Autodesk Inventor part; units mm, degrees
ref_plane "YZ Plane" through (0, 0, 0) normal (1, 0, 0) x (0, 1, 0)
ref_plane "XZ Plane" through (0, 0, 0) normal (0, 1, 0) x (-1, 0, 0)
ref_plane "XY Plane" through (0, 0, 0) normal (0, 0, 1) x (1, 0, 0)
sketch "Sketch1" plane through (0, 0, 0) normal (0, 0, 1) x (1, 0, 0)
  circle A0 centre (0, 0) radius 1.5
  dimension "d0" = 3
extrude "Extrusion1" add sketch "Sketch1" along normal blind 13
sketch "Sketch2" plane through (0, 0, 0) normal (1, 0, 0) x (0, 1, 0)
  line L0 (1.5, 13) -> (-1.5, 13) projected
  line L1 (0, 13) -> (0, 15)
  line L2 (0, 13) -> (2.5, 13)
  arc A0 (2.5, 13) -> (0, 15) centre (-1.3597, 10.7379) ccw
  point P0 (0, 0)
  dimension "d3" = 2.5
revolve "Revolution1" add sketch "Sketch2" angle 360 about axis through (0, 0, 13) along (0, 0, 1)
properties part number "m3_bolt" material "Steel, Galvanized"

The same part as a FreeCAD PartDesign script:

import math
import FreeCAD as App
import Part
import Sketcher
Q = App.Units.Quantity

doc = App.newDocument("Part")
body = doc.addObject("PartDesign::Body", "Body")

sketch1 = doc.addObject("Sketcher::SketchObject", "Sketch")
body.addObject(sketch1)
sketch1.AttachmentSupport = (doc.XY_Plane, [""])
sketch1.MapMode = "FlatFace"
sketch1.addGeometry(Part.Circle(App.Vector(0, 0, 0), App.Vector(0, 0, 1), 1.5), False)
sketch1.addConstraint(Sketcher.Constraint("Coincident", 0, 3, -1, 1))
sketch1.addConstraint(Sketcher.Constraint("Diameter", 0, Q("3 mm")))
pad1 = doc.addObject("PartDesign::Pad", "Pad")
body.addObject(pad1)
pad1.Profile = sketch1
pad1.Length = 13

sketch2 = doc.addObject("Sketcher::SketchObject", "Sketch001")
body.addObject(sketch2)
sketch2.AttachmentSupport = (doc.YZ_Plane, [""])
sketch2.MapMode = "FlatFace"
sketch2.addGeometry(Part.LineSegment(App.Vector(0, 13, 0), App.Vector(2.5, 13, 0)), False)
sketch2.addGeometry(Part.ArcOfCircle(Part.Circle(App.Vector(-1.3597, 10.7379, 0), App.Vector(0, 0, 1), 4.473743), math.radians(30.373792), math.radians(72.306218)), False)
sketch2.addGeometry(Part.LineSegment(App.Vector(0, 15, 0), App.Vector(0, 13, 0)), False)
sketch2.addConstraint(Sketcher.Constraint("Coincident", 0, 2, 1, 1))
sketch2.addConstraint(Sketcher.Constraint("Coincident", 1, 2, 2, 1))
sketch2.addConstraint(Sketcher.Constraint("Coincident", 2, 2, 0, 1))
sketch2.addConstraint(Sketcher.Constraint("Horizontal", 0))
sketch2.addConstraint(Sketcher.Constraint("Vertical", 2))
sketch2.addConstraint(Sketcher.Constraint("PointOnObject", 1, 2, -2))
sketch2.addConstraint(Sketcher.Constraint("DistanceX", 0, 1, 0, 2, Q("2.5 mm")))
sketch2.addConstraint(Sketcher.Constraint("DistanceY", 2, 2, 2, 1, Q("2 mm")))
sketch2.addConstraint(Sketcher.Constraint("DistanceY", -1, 1, 0, 2, Q("13 mm")))
sketch2.addConstraint(Sketcher.Constraint("Radius", 1, Q("4.4737 mm")))
revolution = doc.addObject("PartDesign::Revolution", "Revolution")
body.addObject(revolution)
revolution.Profile = sketch2
revolution.ReferenceAxis = (sketch2, ["V_Axis"])
revolution.Angle = 360

doc.recompute()
